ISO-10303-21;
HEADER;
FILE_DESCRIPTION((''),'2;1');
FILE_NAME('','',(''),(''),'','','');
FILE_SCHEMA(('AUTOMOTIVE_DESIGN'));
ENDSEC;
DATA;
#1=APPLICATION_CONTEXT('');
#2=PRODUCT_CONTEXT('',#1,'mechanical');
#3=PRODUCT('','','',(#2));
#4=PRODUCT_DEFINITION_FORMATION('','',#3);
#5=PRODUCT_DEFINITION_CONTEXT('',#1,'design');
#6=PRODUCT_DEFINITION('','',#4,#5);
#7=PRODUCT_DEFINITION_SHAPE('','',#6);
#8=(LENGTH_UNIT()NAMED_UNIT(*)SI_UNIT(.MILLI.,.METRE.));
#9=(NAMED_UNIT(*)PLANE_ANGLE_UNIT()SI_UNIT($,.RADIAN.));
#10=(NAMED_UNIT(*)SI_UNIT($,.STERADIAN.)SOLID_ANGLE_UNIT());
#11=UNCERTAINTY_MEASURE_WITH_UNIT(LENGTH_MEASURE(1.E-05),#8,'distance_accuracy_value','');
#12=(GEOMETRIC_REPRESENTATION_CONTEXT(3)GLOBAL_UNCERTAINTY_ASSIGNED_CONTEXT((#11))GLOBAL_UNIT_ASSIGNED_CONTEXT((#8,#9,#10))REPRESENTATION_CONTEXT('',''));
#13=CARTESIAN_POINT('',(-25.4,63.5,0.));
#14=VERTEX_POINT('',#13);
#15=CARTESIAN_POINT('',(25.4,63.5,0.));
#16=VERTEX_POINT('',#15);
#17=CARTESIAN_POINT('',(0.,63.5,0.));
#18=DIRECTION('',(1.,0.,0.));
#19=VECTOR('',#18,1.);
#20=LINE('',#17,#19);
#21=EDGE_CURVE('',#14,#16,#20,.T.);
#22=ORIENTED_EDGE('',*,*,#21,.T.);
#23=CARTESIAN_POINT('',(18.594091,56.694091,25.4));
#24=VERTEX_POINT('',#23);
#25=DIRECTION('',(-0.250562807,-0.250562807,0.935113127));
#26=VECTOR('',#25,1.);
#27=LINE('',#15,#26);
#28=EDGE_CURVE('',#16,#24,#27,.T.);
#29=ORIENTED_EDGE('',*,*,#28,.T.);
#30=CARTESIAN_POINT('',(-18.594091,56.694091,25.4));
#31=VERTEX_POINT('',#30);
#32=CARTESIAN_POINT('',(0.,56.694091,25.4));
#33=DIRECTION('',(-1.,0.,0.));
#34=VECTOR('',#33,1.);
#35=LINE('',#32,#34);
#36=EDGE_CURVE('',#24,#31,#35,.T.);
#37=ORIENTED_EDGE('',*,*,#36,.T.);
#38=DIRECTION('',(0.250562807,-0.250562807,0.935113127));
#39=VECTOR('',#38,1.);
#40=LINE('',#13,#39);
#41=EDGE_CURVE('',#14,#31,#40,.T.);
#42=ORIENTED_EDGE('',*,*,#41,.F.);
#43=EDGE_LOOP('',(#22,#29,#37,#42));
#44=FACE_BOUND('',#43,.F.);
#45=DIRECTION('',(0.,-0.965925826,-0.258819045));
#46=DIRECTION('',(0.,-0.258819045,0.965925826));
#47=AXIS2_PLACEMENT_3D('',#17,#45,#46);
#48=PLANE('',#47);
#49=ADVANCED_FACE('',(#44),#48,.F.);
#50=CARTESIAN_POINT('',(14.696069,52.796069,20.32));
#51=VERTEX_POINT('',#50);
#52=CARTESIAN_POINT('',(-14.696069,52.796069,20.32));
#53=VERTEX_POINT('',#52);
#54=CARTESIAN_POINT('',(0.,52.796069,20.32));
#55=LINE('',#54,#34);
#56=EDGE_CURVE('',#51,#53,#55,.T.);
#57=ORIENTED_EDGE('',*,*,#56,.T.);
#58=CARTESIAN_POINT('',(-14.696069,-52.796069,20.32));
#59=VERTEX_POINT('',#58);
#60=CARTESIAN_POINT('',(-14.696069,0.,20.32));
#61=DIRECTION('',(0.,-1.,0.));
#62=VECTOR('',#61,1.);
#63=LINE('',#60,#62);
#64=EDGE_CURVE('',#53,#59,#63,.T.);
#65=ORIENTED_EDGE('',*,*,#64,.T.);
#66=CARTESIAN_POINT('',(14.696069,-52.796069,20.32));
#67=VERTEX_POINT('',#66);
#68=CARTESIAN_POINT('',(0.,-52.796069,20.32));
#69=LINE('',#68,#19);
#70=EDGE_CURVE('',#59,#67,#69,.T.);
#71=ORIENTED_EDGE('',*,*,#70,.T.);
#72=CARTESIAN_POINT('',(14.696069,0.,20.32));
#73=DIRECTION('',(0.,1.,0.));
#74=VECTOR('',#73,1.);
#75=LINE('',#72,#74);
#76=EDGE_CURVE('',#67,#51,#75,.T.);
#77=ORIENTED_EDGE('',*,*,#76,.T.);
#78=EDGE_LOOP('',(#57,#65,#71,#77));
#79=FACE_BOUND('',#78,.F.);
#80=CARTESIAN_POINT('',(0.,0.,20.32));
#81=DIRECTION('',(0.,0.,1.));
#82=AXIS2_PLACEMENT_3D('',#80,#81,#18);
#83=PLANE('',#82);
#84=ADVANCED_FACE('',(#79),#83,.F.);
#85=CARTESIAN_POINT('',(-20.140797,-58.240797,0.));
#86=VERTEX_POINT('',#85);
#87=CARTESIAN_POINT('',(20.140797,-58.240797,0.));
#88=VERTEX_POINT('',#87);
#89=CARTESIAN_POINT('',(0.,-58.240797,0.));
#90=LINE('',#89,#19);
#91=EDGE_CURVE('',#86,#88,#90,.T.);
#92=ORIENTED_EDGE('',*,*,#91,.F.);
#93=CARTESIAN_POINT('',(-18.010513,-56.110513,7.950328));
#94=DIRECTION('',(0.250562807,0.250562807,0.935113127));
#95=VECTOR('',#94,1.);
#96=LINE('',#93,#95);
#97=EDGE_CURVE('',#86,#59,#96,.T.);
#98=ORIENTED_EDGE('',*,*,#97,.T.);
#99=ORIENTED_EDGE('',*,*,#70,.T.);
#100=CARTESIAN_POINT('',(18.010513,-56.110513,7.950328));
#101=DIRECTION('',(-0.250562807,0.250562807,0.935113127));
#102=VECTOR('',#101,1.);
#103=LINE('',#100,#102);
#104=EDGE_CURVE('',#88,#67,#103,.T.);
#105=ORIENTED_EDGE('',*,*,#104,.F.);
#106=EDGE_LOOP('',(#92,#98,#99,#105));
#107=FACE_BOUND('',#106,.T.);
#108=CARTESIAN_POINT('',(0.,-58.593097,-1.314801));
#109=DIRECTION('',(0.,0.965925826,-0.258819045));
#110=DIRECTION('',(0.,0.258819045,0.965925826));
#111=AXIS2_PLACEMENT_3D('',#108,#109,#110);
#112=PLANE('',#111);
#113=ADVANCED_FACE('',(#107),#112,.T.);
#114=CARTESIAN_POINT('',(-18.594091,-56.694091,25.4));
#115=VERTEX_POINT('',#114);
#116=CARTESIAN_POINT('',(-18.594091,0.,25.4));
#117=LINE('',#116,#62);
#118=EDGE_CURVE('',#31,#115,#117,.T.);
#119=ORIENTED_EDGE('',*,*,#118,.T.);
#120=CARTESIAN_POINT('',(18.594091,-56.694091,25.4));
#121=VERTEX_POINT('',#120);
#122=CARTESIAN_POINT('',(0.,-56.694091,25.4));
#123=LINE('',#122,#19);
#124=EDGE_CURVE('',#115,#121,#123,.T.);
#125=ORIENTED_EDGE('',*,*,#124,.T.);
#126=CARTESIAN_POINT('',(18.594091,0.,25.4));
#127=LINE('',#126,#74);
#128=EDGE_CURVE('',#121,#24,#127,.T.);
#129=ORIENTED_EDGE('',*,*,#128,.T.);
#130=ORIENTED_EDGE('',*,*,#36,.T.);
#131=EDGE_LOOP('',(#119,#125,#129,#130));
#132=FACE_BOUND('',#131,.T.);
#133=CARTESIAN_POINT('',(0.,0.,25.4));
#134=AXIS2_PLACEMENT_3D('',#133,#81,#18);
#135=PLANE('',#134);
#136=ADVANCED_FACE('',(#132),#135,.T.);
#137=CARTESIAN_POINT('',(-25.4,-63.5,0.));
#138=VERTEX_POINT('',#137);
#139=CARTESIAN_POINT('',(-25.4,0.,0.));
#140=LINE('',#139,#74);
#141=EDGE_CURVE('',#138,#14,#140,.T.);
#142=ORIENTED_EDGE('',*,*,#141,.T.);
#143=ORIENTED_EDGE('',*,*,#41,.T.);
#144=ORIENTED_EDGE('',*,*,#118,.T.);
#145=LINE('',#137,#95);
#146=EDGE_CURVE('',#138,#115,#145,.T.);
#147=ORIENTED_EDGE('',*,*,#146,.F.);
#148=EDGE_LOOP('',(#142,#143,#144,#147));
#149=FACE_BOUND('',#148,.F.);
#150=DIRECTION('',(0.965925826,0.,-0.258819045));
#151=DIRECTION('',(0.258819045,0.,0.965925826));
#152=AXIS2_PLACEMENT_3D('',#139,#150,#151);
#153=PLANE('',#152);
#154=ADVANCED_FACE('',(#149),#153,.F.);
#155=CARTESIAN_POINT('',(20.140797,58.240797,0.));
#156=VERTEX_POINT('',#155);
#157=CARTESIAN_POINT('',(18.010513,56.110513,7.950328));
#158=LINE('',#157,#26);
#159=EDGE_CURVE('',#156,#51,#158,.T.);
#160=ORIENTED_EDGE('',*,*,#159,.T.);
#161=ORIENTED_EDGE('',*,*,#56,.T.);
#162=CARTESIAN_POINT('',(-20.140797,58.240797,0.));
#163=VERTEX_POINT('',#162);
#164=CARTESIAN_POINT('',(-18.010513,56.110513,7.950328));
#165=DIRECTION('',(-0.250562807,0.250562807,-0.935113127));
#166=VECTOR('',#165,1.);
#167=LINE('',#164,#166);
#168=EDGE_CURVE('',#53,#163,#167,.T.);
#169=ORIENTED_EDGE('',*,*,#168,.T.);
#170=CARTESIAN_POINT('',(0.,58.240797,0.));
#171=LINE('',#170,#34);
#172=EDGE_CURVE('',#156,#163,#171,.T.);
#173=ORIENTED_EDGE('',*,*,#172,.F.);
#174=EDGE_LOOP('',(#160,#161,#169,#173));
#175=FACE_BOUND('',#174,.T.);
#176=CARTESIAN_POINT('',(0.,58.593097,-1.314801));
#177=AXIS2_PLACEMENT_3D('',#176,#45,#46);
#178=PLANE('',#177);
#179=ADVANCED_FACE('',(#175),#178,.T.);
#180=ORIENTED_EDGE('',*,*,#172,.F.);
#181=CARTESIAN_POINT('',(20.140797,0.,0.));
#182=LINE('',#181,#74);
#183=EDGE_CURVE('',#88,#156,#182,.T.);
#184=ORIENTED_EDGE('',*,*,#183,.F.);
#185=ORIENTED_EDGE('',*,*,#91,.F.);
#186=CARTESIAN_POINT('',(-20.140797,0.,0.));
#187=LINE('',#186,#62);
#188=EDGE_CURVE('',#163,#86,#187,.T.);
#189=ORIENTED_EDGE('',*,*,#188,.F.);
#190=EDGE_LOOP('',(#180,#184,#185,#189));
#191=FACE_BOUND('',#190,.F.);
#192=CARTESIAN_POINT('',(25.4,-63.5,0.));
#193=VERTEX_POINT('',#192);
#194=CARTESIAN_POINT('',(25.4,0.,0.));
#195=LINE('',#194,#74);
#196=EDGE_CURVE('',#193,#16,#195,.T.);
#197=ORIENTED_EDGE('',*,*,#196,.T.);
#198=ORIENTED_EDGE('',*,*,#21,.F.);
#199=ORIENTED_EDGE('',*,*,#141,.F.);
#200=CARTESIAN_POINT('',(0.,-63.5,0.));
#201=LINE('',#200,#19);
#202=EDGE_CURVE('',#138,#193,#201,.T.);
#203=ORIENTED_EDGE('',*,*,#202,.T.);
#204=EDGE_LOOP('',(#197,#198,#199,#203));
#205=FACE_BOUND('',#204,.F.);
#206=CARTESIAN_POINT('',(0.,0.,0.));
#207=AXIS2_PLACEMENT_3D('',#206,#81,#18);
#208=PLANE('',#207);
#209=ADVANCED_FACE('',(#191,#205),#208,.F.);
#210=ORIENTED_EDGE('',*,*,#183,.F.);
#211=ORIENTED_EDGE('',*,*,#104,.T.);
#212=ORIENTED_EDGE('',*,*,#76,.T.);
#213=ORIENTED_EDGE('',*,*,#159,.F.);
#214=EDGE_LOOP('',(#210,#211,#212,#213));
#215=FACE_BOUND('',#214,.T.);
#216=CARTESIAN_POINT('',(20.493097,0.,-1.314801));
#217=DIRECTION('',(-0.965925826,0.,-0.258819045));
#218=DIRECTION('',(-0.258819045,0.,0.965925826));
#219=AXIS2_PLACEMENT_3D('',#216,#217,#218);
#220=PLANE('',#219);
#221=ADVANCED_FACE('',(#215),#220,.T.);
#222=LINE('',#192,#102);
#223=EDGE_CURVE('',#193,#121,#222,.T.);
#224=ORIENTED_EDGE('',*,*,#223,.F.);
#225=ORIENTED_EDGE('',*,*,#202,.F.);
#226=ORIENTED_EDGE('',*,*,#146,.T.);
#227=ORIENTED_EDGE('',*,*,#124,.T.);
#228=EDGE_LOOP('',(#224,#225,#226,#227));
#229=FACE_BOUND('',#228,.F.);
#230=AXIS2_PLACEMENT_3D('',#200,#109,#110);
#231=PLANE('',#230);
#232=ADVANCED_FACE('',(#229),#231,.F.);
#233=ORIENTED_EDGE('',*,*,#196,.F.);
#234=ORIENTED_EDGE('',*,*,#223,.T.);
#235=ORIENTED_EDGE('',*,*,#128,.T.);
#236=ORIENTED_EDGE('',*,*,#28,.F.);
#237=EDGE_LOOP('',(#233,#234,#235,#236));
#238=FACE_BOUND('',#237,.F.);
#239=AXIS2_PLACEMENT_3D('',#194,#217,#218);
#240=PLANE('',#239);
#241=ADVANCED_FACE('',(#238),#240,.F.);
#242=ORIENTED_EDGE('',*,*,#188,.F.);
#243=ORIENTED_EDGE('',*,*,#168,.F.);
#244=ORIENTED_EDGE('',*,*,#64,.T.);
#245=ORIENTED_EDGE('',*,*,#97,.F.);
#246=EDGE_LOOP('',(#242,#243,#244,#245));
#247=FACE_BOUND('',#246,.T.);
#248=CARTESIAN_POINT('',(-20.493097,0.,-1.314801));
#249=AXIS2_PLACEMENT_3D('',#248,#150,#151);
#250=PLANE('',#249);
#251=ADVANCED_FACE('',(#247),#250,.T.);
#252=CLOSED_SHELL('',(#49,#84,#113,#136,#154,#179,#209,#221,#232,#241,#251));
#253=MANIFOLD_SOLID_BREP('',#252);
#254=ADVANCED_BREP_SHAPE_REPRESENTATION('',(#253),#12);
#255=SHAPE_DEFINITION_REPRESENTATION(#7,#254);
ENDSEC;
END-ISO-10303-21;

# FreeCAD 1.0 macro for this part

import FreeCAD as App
import Part
import Sketcher
from FreeCAD import Vector
Q = App.Units.Quantity


def faces_at(feature, points):
    """Names of the faces that lie closest to the given points."""
    faces = feature.Shape.Faces
    near = lambda p: min(range(len(faces)), key=lambda i: faces[i].distToShape(Part.Vertex(*p))[0])
    return sorted({f"Face{near(p) + 1}" for p in points})


def add_polygon(sketch, points):
    """Adds a closed chain of lines whose ends are joined by coincident constraints."""
    first, n = sketch.GeometryCount, len(points)
    for a, b in zip(points, points[1:] + points[:1]):
        sketch.addGeometry(Part.LineSegment(App.Vector(*a, 0), App.Vector(*b, 0)), False)
    for i in range(n):
        sketch.addConstraint(Sketcher.Constraint("Coincident", first + i, 2, first + (i + 1) % n, 1))

doc = App.newDocument("Part")
params = doc.addObject("Spreadsheet::Sheet", "Params")
for row, (alias, value) in enumerate([
    ("sketch1_width", "2 in"),
    ("sketch1_height", "5 in"),
    ("pad1_length", "1 in"),
    ("pad1_taper", "-15 deg"),
    ("thickness_wall", "0.2 in"),
], start=1):
    params.set(f"A{row}", alias)
    params.set(f"B{row}", "=" + value)
    params.setAlias(f"B{row}", alias)

body = doc.addObject("PartDesign::Body", "Body")

# Sketch on XY plane
sketch1 = body.newObject("Sketcher::SketchObject", "Sketch")
sketch1.AttachmentSupport = (doc.getObject("XY_Plane"), [""])
sketch1.MapMode = "FlatFace"
add_polygon(sketch1, [(-25, 64), (-25, -64), (25, -64), (25, 64)])  # lines 0-3
sketch1.addConstraint(Sketcher.Constraint("Vertical", 0))
sketch1.addConstraint(Sketcher.Constraint("Horizontal", 1))
sketch1.addConstraint(Sketcher.Constraint("Vertical", 2))
sketch1.addConstraint(Sketcher.Constraint("Horizontal", 3))
sketch1.addConstraint(Sketcher.Constraint("Symmetric", 0, 2, 2, 2, -1, 1))
sketch1.addConstraint(Sketcher.Constraint("DistanceX", 1, 1, 1, 2, Q("2 in")))
sketch1.addConstraint(Sketcher.Constraint("DistanceY", 0, 2, 0, 1, Q("5 in")))
sketch1.setExpression("Constraints[9]", "Params.sketch1_width")
sketch1.setExpression("Constraints[10]", "Params.sketch1_height")
pad1 = body.newObject("PartDesign::Pad", "Pad")
pad1.Profile = sketch1
pad1.setExpression("Length", "Params.pad1_length")
pad1.setExpression("TaperAngle", "Params.pad1_taper")
doc.recompute()

thickness = body.newObject("PartDesign::Thickness", "Thickness")
thickness.Base = (pad1, faces_at(pad1, [(0, 0, 0)]))
thickness.setExpression("Value", "Params.thickness_wall")
thickness.Reversed = True
thickness.Join = "Arc"

doc.recompute()
